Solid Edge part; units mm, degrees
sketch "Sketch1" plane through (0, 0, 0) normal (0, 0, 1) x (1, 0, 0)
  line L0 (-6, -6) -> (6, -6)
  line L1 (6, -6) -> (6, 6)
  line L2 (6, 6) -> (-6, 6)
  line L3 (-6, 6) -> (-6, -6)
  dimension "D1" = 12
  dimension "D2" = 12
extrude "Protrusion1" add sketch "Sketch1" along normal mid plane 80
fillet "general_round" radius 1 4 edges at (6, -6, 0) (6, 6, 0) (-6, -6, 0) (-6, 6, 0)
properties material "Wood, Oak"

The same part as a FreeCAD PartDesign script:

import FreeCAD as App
import Part
import Sketcher
Q = App.Units.Quantity


def edges_at(feature, points):
    """Names of the edges that pass closest to the given points."""
    edges = feature.Shape.Edges
    near = lambda p: min(range(len(edges)), key=lambda i: edges[i].distToShape(Part.Vertex(*p))[0])
    return sorted({f"Edge{near(p) + 1}" for p in points})


def add_polygon(sketch, points):
    """Adds a closed chain of lines whose ends are joined by coincident constraints."""
    first, n = sketch.GeometryCount, len(points)
    for a, b in zip(points, points[1:] + points[:1]):
        sketch.addGeometry(Part.LineSegment(App.Vector(*a, 0), App.Vector(*b, 0)), False)
    for i in range(n):
        sketch.addConstraint(Sketcher.Constraint("Coincident", first + i, 2, first + (i + 1) % n, 1))

doc = App.newDocument("Part")
body = doc.addObject("PartDesign::Body", "Body")

sketch1 = body.newObject("Sketcher::SketchObject", "Sketch")
sketch1.AttachmentSupport = (doc.getObject("XY_Plane"), [""])
sketch1.MapMode = "FlatFace"
add_polygon(sketch1, [(-6, 6), (-6, -6), (6, -6), (6, 6)])
sketch1.addConstraint([
    Sketcher.Constraint("Vertical", 0),
    Sketcher.Constraint("Horizontal", 1),
    Sketcher.Constraint("Vertical", 2),
    Sketcher.Constraint("Horizontal", 3),
    Sketcher.Constraint("Symmetric", 0, 2, 2, 2, -1, 1),
    Sketcher.Constraint("Equal", 3, 0),
    Sketcher.Constraint("DistanceX", 0, 2, -1, 1, Q("6 mm")),
])
pad1 = body.newObject("PartDesign::Pad", "Pad")
pad1.Profile = sketch1
pad1.Length = 80
pad1.Midplane = True
doc.recompute()

fillet = body.newObject("PartDesign::Fillet", "Fillet")
fillet.Base = (pad1, edges_at(pad1, [
    (6, -6, 0),
    (6, 6, 0),
    (-6, -6, 0),
    (-6, 6, 0),
]))
fillet.Radius = 1

doc.recompute()
